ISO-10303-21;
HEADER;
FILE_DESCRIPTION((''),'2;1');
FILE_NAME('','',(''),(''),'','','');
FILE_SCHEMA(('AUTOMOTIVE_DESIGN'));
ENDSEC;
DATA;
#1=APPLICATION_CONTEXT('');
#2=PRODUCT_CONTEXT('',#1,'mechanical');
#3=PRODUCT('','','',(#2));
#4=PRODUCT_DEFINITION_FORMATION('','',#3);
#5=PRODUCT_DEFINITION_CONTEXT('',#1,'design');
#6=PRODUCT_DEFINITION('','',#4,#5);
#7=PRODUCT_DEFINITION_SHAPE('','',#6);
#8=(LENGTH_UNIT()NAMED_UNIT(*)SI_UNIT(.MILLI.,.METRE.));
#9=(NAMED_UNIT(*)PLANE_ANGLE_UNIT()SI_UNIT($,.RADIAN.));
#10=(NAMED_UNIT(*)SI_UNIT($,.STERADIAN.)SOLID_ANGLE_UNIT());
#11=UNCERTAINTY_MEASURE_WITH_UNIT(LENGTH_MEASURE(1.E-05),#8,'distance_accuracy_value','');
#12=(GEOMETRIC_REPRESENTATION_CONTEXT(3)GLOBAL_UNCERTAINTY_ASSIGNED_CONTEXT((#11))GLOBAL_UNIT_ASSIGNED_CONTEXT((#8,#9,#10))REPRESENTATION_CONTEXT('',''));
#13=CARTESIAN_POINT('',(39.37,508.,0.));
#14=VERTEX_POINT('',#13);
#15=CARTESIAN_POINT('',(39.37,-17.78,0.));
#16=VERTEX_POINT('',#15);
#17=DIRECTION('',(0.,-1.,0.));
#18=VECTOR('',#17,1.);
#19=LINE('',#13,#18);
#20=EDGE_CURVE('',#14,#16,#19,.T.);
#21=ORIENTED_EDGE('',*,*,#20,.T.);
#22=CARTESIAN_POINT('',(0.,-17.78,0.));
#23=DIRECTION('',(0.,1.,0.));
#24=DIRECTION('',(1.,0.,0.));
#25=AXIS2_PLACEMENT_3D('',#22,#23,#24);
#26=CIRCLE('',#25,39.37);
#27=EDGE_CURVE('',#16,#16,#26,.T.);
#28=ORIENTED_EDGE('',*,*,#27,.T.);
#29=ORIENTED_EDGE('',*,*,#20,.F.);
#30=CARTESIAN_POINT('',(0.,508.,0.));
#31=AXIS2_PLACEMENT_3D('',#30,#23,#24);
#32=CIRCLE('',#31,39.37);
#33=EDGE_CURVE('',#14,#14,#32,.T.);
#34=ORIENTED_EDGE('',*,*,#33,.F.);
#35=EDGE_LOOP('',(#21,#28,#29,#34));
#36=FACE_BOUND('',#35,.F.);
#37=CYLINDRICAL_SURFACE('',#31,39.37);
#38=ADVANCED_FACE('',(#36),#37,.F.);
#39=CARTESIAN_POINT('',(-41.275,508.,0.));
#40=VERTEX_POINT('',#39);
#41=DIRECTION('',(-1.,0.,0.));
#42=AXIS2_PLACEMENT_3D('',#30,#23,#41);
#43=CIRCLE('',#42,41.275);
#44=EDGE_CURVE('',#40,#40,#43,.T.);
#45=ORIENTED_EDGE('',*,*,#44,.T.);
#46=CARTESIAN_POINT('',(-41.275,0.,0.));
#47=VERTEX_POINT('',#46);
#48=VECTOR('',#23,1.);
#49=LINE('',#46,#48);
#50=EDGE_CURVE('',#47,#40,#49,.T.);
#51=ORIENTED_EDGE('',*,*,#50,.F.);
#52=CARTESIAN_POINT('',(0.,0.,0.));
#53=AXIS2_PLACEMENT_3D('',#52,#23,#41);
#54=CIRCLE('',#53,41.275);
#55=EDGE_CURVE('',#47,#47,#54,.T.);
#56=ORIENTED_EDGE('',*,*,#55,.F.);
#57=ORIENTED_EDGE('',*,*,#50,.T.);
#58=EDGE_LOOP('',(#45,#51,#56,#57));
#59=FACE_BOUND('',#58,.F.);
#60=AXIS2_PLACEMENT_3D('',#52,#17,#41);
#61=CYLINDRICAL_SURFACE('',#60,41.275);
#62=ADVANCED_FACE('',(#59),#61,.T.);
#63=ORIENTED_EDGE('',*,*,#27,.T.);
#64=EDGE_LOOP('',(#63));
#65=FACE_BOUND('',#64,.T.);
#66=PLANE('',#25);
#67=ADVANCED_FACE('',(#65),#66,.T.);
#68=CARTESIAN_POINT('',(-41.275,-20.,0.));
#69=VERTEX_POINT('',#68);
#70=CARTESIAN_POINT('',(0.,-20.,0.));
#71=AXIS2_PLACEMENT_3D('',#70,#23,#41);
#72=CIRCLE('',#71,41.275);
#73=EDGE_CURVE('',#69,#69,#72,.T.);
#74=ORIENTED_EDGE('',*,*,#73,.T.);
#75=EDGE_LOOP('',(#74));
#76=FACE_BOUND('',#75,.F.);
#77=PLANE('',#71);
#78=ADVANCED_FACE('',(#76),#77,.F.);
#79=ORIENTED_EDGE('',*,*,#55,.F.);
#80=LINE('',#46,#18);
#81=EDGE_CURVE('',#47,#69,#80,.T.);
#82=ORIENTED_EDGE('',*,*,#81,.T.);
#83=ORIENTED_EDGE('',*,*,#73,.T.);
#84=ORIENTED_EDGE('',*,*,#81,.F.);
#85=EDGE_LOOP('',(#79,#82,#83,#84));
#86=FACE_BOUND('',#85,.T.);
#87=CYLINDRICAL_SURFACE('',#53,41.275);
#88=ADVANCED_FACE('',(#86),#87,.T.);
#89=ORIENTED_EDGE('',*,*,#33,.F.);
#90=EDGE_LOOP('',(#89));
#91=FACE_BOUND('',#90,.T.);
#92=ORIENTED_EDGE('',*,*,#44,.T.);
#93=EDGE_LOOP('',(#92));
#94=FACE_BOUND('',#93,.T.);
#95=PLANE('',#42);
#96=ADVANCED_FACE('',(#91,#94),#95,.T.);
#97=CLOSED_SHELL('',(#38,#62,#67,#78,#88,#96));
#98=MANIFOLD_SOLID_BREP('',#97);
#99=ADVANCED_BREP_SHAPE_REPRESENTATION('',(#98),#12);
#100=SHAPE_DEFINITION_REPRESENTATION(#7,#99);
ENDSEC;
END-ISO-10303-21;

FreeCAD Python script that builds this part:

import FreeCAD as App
import Part
import Sketcher
from FreeCAD import Vector
Q = App.Units.Quantity

doc = App.newDocument("Part")
body = doc.addObject("PartDesign::Body", "Body")

# Sketch on XZ plane
sketch1 = body.newObject("Sketcher::SketchObject", "Sketch")
sketch1.AttachmentSupport = (doc.getObject("XZ_Plane"), [""])
sketch1.MapMode = "FlatFace"
sketch1.addGeometry(Part.Circle(Vector(0, 0, 0), Vector(0, 0, 1), 41.275), False)
sketch1.addConstraint([
    Sketcher.Constraint("Coincident", 0, 3, -1, 1),
    Sketcher.Constraint("Diameter", 0, Q("3.25 in")),
])
pad1 = body.newObject("PartDesign::Pad", "Pad")
pad1.Profile = sketch1
pad1.Type = "TwoLengths"
pad1.Length = Q("20 in")
pad1.Length2 = Q("0.7874016 in")
pad1.Reversed = True

# Sketch on XZ plane
sketch2 = body.newObject("Sketcher::SketchObject", "Sketch001")
sketch2.AttachmentSupport = (doc.getObject("XZ_Plane"), [""])
sketch2.MapMode = "FlatFace"
sketch2.AttachmentOffset = App.Placement(Vector(0, 0, -20 * 25.4), App.Rotation())
sketch2.addGeometry(Part.Circle(Vector(0, 0, 0), Vector(0, 0, 1), 39.37), False)
sketch2.addConstraint([
    Sketcher.Constraint("Coincident", 0, 3, -1, 1),
    Sketcher.Constraint("Diameter", 0, Q("3.1 in")),
])
pocket1 = body.newObject("PartDesign::Pocket", "Pocket")
pocket1.Profile = sketch2
pocket1.Length = Q("20.7 in")
pocket1.Reversed = True

doc.recompute()
